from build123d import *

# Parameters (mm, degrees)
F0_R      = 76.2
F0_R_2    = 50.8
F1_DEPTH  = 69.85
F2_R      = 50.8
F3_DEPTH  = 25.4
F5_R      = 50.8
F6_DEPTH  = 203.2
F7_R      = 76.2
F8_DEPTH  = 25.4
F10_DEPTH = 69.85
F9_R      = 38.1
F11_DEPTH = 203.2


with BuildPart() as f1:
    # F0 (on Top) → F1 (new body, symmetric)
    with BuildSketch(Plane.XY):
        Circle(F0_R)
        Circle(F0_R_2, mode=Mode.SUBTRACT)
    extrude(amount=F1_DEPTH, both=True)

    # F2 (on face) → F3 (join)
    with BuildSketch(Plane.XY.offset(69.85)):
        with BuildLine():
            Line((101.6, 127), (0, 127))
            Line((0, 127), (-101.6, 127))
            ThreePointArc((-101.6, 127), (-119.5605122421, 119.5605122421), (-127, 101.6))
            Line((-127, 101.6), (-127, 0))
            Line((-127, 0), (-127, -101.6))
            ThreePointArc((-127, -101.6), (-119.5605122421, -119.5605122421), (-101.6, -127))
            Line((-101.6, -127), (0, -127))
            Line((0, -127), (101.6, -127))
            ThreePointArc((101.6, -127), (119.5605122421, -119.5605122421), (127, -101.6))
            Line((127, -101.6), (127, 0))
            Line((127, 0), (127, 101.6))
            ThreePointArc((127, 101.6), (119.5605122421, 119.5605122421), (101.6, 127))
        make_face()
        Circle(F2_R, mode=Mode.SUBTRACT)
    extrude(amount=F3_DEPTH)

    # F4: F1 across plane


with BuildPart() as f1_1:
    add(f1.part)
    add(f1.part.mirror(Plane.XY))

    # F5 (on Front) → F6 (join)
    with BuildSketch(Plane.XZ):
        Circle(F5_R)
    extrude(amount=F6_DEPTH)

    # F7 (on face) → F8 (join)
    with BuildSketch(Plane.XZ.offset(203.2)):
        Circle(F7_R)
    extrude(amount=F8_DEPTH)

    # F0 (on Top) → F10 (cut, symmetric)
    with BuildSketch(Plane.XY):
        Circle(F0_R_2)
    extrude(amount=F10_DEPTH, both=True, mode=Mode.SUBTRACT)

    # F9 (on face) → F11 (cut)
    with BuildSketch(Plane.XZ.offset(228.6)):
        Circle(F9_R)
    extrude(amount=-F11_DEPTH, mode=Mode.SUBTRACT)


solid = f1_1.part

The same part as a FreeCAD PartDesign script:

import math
import FreeCAD as App
import Part
import Sketcher

V = App.Vector
Q = App.Units.Quantity

doc = App.newDocument("Part")
body = doc.addObject("PartDesign::Body", "Body")

# Sketch on XY plane
sketch1 = body.newObject("Sketcher::SketchObject", "Sketch")
sketch1.AttachmentSupport = (doc.getObject("XY_Plane"), [""])
sketch1.MapMode = "FlatFace"
sketch1.addGeometry(Part.Circle(V(0, 0, 0), V(0, 0, 1), 76), False)
sketch1.addGeometry(Part.Circle(V(0, 0, 0), V(0, 0, 1), 51), False)
sketch1.addConstraint(Sketcher.Constraint("Coincident", 0, 3, -1, 1))
sketch1.addConstraint(Sketcher.Constraint("Coincident", 1, 3, -1, 1))
sketch1.addConstraint(Sketcher.Constraint("Diameter", 0, Q("6 in")))
sketch1.addConstraint(Sketcher.Constraint("Diameter", 1, Q("4 in")))
pad1 = body.newObject("PartDesign::Pad", "Pad")
pad1.Profile = sketch1
pad1.Length = Q("5.5 in")
pad1.Midplane = True

# Sketch on XY plane
sketch2 = body.newObject("Sketcher::SketchObject", "Sketch001")
sketch2.AttachmentSupport = (doc.getObject("XY_Plane"), [""])
sketch2.MapMode = "FlatFace"
sketch2.AttachmentOffset = App.Placement(V(0, 0, 2.75 * 25.4), App.Rotation())
sketch2.addGeometry(Part.LineSegment(V(102, 127, 0), V(-102, 127, 0)), False)
sketch2.addGeometry(Part.ArcOfCircle(Part.Circle(V(-102, 102, 0), V(0, 0, 1), 25), math.radians(90), math.radians(180)), False)
sketch2.addGeometry(Part.LineSegment(V(-127, 102, 0), V(-127, -102, 0)), False)
sketch2.addGeometry(Part.ArcOfCircle(Part.Circle(V(-102, -102, 0), V(0, 0, 1), 25), math.radians(180), math.radians(270)), False)
sketch2.addGeometry(Part.LineSegment(V(-102, -127, 0), V(102, -127, 0)), False)
sketch2.addGeometry(Part.ArcOfCircle(Part.Circle(V(102, -102, 0), V(0, 0, 1), 25), math.radians(-90), math.radians(0)), False)
sketch2.addGeometry(Part.LineSegment(V(127, -102, 0), V(127, 102, 0)), False)
sketch2.addGeometry(Part.ArcOfCircle(Part.Circle(V(102, 102, 0), V(0, 0, 1), 25), math.radians(0), math.radians(90)), False)
sketch2.addGeometry(Part.Circle(V(0, 0, 0), V(0, 0, 1), 51), False)
sketch2.addConstraint(Sketcher.Constraint("Tangent", 0, 2, 1, 1))
sketch2.addConstraint(Sketcher.Constraint("Tangent", 1, 2, 2, 1))
sketch2.addConstraint(Sketcher.Constraint("Tangent", 2, 2, 3, 1))
sketch2.addConstraint(Sketcher.Constraint("Tangent", 3, 2, 4, 1))
sketch2.addConstraint(Sketcher.Constraint("Tangent", 4, 2, 5, 1))
sketch2.addConstraint(Sketcher.Constraint("Tangent", 5, 2, 6, 1))
sketch2.addConstraint(Sketcher.Constraint("Tangent", 6, 2, 7, 1))
sketch2.addConstraint(Sketcher.Constraint("Tangent", 7, 2, 0, 1))
sketch2.addConstraint(Sketcher.Constraint("Horizontal", 0))
sketch2.addConstraint(Sketcher.Constraint("Vertical", 2))
sketch2.addConstraint(Sketcher.Constraint("Horizontal", 4))
sketch2.addConstraint(Sketcher.Constraint("Vertical", 6))
sketch2.addConstraint(Sketcher.Constraint("Coincident", 8, 3, -1, 1))
sketch2.addConstraint(Sketcher.Constraint("Equal", 1, 3))
sketch2.addConstraint(Sketcher.Constraint("Equal", 3, 5))
sketch2.addConstraint(Sketcher.Constraint("Equal", 5, 7))
sketch2.addConstraint(Sketcher.Constraint("Symmetric", 1, 3, 5, 3, -1, 1))
sketch2.addConstraint(Sketcher.Constraint("Equal", 4, 2))
sketch2.addConstraint(Sketcher.Constraint("Diameter", 8, Q("4 in")))
sketch2.addConstraint(Sketcher.Constraint("Radius", 1, Q("1 in")))
sketch2.addConstraint(Sketcher.Constraint("DistanceX", 0, 2, 0, 1, Q("8 in")))
pad2 = body.newObject("PartDesign::Pad", "Pad001")
pad2.Profile = sketch2
pad2.Length = Q("1 in")
body2 = doc.addObject("PartDesign::Body", "Body001")
doc.recompute()

body2.BaseFeature = body
doc.recompute()

mirroring = doc.addObject("Part::Mirroring", "Mirroring")
mirroring.Source = body
mirroring.Base = V(0, 0, 0)
mirroring.Normal = V(0, 0, 1)
body3 = doc.addObject("PartDesign::Body", "Body002")
body3.BaseFeature = mirroring
boolean = body2.newObject("PartDesign::Boolean", "Boolean")
boolean.Type = "Fuse"
boolean.addObjects([body3])
doc.recompute()

# Sketch on XZ plane
sketch3 = body2.newObject("Sketcher::SketchObject", "Sketch002")
sketch3.AttachmentSupport = (doc.getObject("XZ_Plane001"), [""])
sketch3.MapMode = "FlatFace"
sketch3.addGeometry(Part.Circle(V(0, 0, 0), V(0, 0, 1), 51), False)
sketch3.addConstraint(Sketcher.Constraint("Coincident", 0, 3, -1, 1))
sketch3.addConstraint(Sketcher.Constraint("Diameter", 0, Q("4 in")))
pad3 = body2.newObject("PartDesign::Pad", "Pad002")
pad3.Profile = sketch3
pad3.Length = Q("8 in")

# Sketch on XZ plane
sketch4 = body2.newObject("Sketcher::SketchObject", "Sketch003")
sketch4.AttachmentSupport = (doc.getObject("XZ_Plane001"), [""])
sketch4.MapMode = "FlatFace"
sketch4.AttachmentOffset = App.Placement(V(0, 0, 8 * 25.4), App.Rotation())
sketch4.addGeometry(Part.Circle(V(0, 0, 0), V(0, 0, 1), 76), False)
sketch4.addConstraint(Sketcher.Constraint("Coincident", 0, 3, -1, 1))
sketch4.addConstraint(Sketcher.Constraint("Diameter", 0, Q("6 in")))
pad4 = body2.newObject("PartDesign::Pad", "Pad003")
pad4.Profile = sketch4
pad4.Length = Q("1 in")

# Sketch on XY plane
sketch5 = body2.newObject("Sketcher::SketchObject", "Sketch004")
sketch5.AttachmentSupport = (doc.getObject("XY_Plane001"), [""])
sketch5.MapMode = "FlatFace"
sketch5.addGeometry(Part.Circle(V(0, 0, 0), V(0, 0, 1), 51), False)
sketch5.addConstraint(Sketcher.Constraint("Coincident", 0, 3, -1, 1))
sketch5.addConstraint(Sketcher.Constraint("Diameter", 0, Q("4 in")))
pocket1 = body2.newObject("PartDesign::Pocket", "Pocket")
pocket1.Profile = sketch5
pocket1.Length = Q("5.5 in")
pocket1.Midplane = True

# Sketch on XZ plane
sketch6 = body2.newObject("Sketcher::SketchObject", "Sketch005")
sketch6.AttachmentSupport = (doc.getObject("XZ_Plane001"), [""])
sketch6.MapMode = "FlatFace"
sketch6.AttachmentOffset = App.Placement(V(0, 0, 9 * 25.4), App.Rotation())
sketch6.addGeometry(Part.Circle(V(0, 0, 0), V(0, 0, 1), 38), False)
sketch6.addConstraint(Sketcher.Constraint("Coincident", 0, 3, -1, 1))
sketch6.addConstraint(Sketcher.Constraint("Diameter", 0, Q("3 in")))
pocket2 = body2.newObject("PartDesign::Pocket", "Pocket001")
pocket2.Profile = sketch6
pocket2.Length = Q("8 in")
mirroring.Visibility = False

doc.recompute()
